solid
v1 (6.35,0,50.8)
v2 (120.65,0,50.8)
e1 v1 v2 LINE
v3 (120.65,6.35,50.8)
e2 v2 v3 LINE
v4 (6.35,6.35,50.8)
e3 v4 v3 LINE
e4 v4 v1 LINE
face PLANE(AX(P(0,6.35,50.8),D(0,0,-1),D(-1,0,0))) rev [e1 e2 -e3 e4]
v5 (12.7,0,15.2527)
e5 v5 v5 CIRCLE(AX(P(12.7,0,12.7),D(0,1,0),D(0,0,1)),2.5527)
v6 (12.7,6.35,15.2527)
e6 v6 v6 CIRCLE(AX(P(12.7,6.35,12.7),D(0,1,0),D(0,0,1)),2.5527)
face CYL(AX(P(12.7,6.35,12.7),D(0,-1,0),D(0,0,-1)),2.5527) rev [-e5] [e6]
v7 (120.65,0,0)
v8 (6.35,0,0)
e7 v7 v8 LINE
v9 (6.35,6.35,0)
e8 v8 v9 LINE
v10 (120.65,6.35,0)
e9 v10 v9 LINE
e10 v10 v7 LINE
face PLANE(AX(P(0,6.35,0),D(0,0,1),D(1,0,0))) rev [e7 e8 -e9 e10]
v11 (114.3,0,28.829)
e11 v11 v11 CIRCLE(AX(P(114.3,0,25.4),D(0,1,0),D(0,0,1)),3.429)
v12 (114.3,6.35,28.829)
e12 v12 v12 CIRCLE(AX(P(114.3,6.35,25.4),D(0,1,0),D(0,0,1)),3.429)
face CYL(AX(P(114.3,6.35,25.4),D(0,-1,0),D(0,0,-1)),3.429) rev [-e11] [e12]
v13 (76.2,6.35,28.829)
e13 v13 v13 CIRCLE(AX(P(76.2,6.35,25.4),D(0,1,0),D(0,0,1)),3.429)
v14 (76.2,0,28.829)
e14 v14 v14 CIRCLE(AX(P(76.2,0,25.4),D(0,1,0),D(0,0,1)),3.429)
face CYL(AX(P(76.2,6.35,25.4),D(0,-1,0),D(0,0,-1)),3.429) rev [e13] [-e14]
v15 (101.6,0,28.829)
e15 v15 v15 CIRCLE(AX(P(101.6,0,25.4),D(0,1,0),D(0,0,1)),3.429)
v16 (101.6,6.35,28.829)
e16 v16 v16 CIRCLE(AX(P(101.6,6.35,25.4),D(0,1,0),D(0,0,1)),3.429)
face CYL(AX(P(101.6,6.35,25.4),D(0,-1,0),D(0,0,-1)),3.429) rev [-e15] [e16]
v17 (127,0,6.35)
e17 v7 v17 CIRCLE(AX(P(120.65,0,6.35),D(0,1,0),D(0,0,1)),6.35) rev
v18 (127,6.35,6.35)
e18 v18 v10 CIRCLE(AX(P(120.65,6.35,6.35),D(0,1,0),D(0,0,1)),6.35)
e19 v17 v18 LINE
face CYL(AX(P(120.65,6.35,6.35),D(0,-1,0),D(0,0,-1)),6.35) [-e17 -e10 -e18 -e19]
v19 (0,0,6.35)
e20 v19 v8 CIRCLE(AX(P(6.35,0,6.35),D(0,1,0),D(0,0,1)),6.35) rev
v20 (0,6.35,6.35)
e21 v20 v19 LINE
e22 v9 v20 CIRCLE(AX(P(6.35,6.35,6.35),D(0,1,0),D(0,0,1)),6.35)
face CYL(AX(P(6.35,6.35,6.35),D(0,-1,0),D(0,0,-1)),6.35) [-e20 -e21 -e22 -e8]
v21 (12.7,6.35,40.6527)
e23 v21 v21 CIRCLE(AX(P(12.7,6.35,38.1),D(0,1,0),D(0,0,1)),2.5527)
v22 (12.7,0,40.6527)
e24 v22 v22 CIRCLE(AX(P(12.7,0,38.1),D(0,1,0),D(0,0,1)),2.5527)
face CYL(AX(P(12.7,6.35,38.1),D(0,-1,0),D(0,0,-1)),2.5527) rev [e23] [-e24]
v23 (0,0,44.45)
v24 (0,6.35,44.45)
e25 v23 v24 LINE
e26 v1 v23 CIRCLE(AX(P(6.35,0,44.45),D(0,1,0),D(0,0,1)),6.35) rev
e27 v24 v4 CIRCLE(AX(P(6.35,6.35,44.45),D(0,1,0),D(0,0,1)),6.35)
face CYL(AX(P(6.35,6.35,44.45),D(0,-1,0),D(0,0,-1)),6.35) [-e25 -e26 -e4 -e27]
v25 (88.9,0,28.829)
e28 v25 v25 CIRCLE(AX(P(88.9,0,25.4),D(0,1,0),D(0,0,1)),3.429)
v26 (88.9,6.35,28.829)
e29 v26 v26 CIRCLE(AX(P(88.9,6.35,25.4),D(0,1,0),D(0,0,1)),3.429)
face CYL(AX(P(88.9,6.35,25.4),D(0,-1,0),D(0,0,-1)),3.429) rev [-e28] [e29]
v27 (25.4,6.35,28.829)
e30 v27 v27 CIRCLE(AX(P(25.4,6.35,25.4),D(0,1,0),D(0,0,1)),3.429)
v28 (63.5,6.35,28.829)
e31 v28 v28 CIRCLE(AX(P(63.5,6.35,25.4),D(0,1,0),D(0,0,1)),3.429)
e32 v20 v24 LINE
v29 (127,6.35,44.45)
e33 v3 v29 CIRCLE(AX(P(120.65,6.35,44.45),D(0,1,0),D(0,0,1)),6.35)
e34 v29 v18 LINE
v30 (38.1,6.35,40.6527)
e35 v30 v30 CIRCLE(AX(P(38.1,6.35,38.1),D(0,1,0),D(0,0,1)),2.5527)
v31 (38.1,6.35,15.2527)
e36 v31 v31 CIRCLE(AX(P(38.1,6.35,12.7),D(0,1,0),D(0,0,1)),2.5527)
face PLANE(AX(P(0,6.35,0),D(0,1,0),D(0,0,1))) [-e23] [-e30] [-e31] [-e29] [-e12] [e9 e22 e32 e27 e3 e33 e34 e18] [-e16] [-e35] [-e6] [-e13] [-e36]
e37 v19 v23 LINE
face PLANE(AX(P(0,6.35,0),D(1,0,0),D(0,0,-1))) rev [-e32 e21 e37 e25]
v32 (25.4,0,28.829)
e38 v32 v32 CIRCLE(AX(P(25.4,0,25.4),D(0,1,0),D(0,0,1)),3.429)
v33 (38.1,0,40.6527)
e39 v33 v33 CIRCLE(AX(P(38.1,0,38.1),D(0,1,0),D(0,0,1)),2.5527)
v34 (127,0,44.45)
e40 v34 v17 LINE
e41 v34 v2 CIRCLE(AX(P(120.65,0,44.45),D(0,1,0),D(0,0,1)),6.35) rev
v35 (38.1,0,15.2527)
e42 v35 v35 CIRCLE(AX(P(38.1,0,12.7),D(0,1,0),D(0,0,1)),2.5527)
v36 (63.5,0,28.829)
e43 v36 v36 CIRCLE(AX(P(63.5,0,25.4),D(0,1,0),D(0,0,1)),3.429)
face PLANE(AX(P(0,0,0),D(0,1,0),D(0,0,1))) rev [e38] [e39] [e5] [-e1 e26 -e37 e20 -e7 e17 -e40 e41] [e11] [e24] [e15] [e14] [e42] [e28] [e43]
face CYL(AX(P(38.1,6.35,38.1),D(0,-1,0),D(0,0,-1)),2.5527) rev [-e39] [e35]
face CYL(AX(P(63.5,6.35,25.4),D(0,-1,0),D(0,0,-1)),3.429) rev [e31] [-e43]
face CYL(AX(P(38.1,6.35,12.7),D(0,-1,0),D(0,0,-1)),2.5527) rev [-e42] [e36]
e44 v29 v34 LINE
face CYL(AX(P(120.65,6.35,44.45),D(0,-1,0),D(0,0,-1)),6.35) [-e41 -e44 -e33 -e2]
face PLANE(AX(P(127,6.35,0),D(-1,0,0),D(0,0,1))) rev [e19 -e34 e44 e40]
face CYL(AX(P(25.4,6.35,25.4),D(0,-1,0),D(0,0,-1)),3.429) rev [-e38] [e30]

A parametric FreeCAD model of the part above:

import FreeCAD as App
import Part
import Sketcher

V = App.Vector
Q = App.Units.Quantity


def edges_at(feature, points):
    """Names of the edges that pass closest to the given points."""
    edges = feature.Shape.Edges
    near = lambda p: min(range(len(edges)), key=lambda i: edges[i].distToShape(Part.Vertex(*p))[0])
    return sorted({f"Edge{near(p) + 1}" for p in points})


def add_polygon(sketch, points):
    """Adds a closed chain of lines whose ends are joined by coincident constraints."""
    first, n = sketch.GeometryCount, len(points)
    for a, b in zip(points, points[1:] + points[:1]):
        sketch.addGeometry(Part.LineSegment(App.Vector(*a, 0), App.Vector(*b, 0)), False)
    for i in range(n):
        sketch.addConstraint(Sketcher.Constraint("Coincident", first + i, 2, first + (i + 1) % n, 1))

doc = App.newDocument("Part")
body = doc.addObject("PartDesign::Body", "Body")

# Sketch on XZ plane
sketch1 = body.newObject("Sketcher::SketchObject", "Sketch")
sketch1.AttachmentSupport = (doc.getObject("XZ_Plane"), [""])
sketch1.MapMode = "FlatFace"
add_polygon(sketch1, [(0, 0), (0, 50.8), (127, 50.8), (127, 0)])  # lines 0-3
sketch1.addGeometry(Part.Circle(V(12.7, 38.1, 0), V(0, 0, 1), 2.6), False)  # 4
sketch1.addGeometry(Part.Circle(V(38.1, 38.1, 0), V(0, 0, 1), 2.6), False)  # 5
sketch1.addGeometry(Part.Circle(V(25.4, 25.4, 0), V(0, 0, 1), 3.4), False)  # 6
sketch1.addGeometry(Part.Circle(V(63.5, 25.4, 0), V(0, 0, 1), 3.4), False)  # 7
sketch1.addGeometry(Part.Circle(V(12.7, 12.7, 0), V(0, 0, 1), 2.6), False)  # 8
sketch1.addGeometry(Part.Circle(V(38.1, 12.7, 0), V(0, 0, 1), 2.6), False)  # 9
sketch1.addGeometry(Part.Circle(V(76.2, 25.4, 0), V(0, 0, 1), 3.4), False)  # 10
sketch1.addGeometry(Part.Circle(V(88.9, 25.4, 0), V(0, 0, 1), 3.4), False)  # 11
sketch1.addGeometry(Part.Circle(V(101.6, 25.4, 0), V(0, 0, 1), 3.4), False)  # 12
sketch1.addGeometry(Part.Circle(V(114.3, 25.4, 0), V(0, 0, 1), 3.4), False)  # 13
sketch1.addConstraint([
    Sketcher.Constraint("Vertical", 0),
    Sketcher.Constraint("Horizontal", 1),
    Sketcher.Constraint("Vertical", 2),
    Sketcher.Constraint("Horizontal", 3),
    Sketcher.Constraint("Coincident", 3, 2, -1, 1),
    Sketcher.Constraint("Equal", 4, 5),
    Sketcher.Constraint("Equal", 6, 7),
    Sketcher.Constraint("Equal", 5, 8),
    Sketcher.Constraint("Equal", 8, 9),
    Sketcher.Constraint("Equal", 7, 10),
    Sketcher.Constraint("Equal", 10, 11),
    Sketcher.Constraint("Equal", 11, 12),
    Sketcher.Constraint("Equal", 12, 13),
    Sketcher.Constraint("Horizontal", 4, 3, 5, 3),
    Sketcher.Constraint("Horizontal", 6, 3, 7, 3),
    Sketcher.Constraint("Horizontal", 8, 3, 9, 3),
    Sketcher.Constraint("Horizontal", 7, 3, 10, 3),
    Sketcher.Constraint("Horizontal", 10, 3, 11, 3),
    Sketcher.Constraint("Horizontal", 11, 3, 12, 3),
    Sketcher.Constraint("Horizontal", 12, 3, 13, 3),
    Sketcher.Constraint("Vertical", 4, 3, 8, 3),
    Sketcher.Constraint("Vertical", 5, 3, 9, 3),
    Sketcher.Constraint("Diameter", 6, Q("0.27 in")),
    Sketcher.Constraint("DistanceX", 1, 1, 1, 2, Q("5 in")),
    Sketcher.Constraint("DistanceY", 0, 1, 0, 2, Q("2 in")),
    Sketcher.Constraint("Diameter", 4, Q("0.201 in")),
    Sketcher.Constraint("DistanceX", -1, 1, 6, 3, Q("1 in")),
    Sketcher.Constraint("DistanceY", -1, 1, 6, 3, Q("1 in")),
    Sketcher.Constraint("DistanceX", -1, 1, 10, 3, Q("3 in")),
    Sketcher.Constraint("DistanceX", -1, 1, 12, 3, Q("4 in")),
    Sketcher.Constraint("DistanceX", 4, 3, 5, 3, Q("1 in")),
    Sketcher.Constraint("DistanceX", 5, 3, 7, 3, Q("1 in")),
    Sketcher.Constraint("DistanceY", 8, 3, 4, 3, Q("1 in")),
    Sketcher.Constraint("DistanceX", 7, 3, 11, 3, Q("1 in")),
    Sketcher.Constraint("DistanceX", 11, 3, 13, 3, Q("1 in")),
    Sketcher.Constraint("DistanceX", -1, 1, 4, 3, Q("0.5 in")),
    Sketcher.Constraint("DistanceY", -1, 1, 4, 3, Q("1.5 in")),
])
pad1 = body.newObject("PartDesign::Pad", "Pad")
pad1.Profile = sketch1
pad1.Length = Q("0.25 in")
pad1.Reversed = True
doc.recompute()

fillet = body.newObject("PartDesign::Fillet", "Fillet")
fillet.Base = (pad1, edges_at(pad1, [
    (0, 3.175, 0),
    (127, 3.175, 0),
    (127, 3.175, 50.8),
    (0, 3.175, 50.8),
]))
fillet.Radius = Q("0.25 in")

doc.recompute()
